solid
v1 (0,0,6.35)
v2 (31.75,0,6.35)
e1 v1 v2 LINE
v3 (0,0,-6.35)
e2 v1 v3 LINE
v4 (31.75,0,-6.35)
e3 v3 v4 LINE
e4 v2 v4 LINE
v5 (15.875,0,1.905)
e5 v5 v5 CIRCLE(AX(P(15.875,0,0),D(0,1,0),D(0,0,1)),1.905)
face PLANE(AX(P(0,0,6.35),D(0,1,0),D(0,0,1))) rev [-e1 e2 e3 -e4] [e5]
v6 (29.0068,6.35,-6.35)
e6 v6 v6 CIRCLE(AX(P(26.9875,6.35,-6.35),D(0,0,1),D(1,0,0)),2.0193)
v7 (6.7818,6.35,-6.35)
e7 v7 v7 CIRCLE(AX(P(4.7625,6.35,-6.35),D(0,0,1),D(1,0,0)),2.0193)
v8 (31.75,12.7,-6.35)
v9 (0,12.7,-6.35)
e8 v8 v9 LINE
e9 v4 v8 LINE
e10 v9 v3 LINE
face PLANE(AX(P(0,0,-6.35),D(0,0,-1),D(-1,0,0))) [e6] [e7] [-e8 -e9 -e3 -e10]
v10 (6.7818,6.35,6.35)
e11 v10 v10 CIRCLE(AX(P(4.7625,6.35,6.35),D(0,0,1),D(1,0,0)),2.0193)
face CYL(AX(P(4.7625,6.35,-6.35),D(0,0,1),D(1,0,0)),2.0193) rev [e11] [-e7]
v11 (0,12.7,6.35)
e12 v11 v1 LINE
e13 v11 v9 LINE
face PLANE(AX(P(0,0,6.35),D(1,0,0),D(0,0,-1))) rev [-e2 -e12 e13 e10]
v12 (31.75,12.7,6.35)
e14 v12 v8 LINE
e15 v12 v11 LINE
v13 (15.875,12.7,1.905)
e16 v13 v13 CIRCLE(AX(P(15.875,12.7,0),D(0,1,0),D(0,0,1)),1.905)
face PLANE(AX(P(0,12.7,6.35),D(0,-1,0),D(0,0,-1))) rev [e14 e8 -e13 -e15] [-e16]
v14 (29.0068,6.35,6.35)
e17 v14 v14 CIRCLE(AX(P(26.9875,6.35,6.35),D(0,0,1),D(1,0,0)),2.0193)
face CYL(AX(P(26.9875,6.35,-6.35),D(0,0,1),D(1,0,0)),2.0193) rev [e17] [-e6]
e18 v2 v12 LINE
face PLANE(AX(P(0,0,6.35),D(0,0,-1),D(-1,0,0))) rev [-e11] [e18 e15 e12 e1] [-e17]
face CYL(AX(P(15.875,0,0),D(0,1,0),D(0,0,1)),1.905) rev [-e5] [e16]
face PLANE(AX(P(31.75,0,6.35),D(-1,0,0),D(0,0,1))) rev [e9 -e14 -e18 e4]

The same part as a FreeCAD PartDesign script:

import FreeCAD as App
import Part
import Sketcher
Q = App.Units.Quantity

doc = App.newDocument("Part")
params = doc.addObject("Spreadsheet::Sheet", "Params")
for row, (alias, value) in enumerate([
    ("sketch1_height", "0.5 in"),
    ("sketch1_width", "1.25 in"),
    ("pad1_length", "0.5 in"),
    ("sketch2_diameter", "0.159 in"),
    ("sketch3_diameter", "0.15 in"),
], start=1):
    params.set(f"A{row}", alias)
    params.set(f"B{row}", "=" + value)
    params.setAlias(f"B{row}", alias)

body = doc.addObject("PartDesign::Body", "Body")

# Sketch on XY plane
sketch1 = doc.addObject("Sketcher::SketchObject", "Sketch")
body.addObject(sketch1)
sketch1.AttachmentSupport = (doc.XY_Plane, [""])
sketch1.MapMode = "FlatFace"
sketch1.addGeometry([
    Part.LineSegment(App.Vector(0, 13, 0), App.Vector(0, 0, 0)),
    Part.LineSegment(App.Vector(0, 0, 0), App.Vector(32, 0, 0)),
    Part.LineSegment(App.Vector(32, 0, 0), App.Vector(32, 13, 0)),
    Part.LineSegment(App.Vector(32, 13, 0), App.Vector(0, 13, 0)),
], False)
sketch1.addConstraint([
    Sketcher.Constraint("Coincident", 0, 2, 1, 1),
    Sketcher.Constraint("Coincident", 1, 2, 2, 1),
    Sketcher.Constraint("Coincident", 2, 2, 3, 1),
    Sketcher.Constraint("Coincident", 3, 2, 0, 1),
    Sketcher.Constraint("Vertical", 0),
    Sketcher.Constraint("Horizontal", 1),
    Sketcher.Constraint("Vertical", 2),
    Sketcher.Constraint("Horizontal", 3),
    Sketcher.Constraint("Coincident", 0, 2, -1, 1),
    Sketcher.Constraint("DistanceY", 0, 2, 0, 1, Q("0.5 in")),
    Sketcher.Constraint("DistanceX", 1, 1, 1, 2, Q("1.25 in")),
])
sketch1.setExpression("Constraints[9]", "Params.sketch1_height")
sketch1.setExpression("Constraints[10]", "Params.sketch1_width")
pad1 = doc.addObject("PartDesign::Pad", "Pad")
body.addObject(pad1)
pad1.Profile = sketch1
pad1.setExpression("Length", "Params.pad1_length")
pad1.Midplane = True

# Sketch on XY plane
sketch2 = doc.addObject("Sketcher::SketchObject", "Sketch001")
body.addObject(sketch2)
sketch2.AttachmentSupport = (doc.XY_Plane, [""])
sketch2.MapMode = "FlatFace"
sketch2.AttachmentOffset = App.Placement(App.Vector(0, 0, 0.25 * 25.4), App.Rotation())
sketch2.addGeometry([
    Part.Circle(App.Vector(4.8, 6.3, 0), App.Vector(0, 0, 1), 2),
    Part.Circle(App.Vector(27, 6.3, 0), App.Vector(0, 0, 1), 2),
], False)
sketch2.addConstraint([
    Sketcher.Constraint("Equal", 0, 1),
    Sketcher.Constraint("Horizontal", 0, 3, 1, 3),
    Sketcher.Constraint("Diameter", 0, Q("0.159 in")),
    Sketcher.Constraint("DistanceY", -1, 1, 0, 3, Q("0.25 in")),
    Sketcher.Constraint("DistanceX", -1, 1, 0, 3, Q("0.1875 in")),
    Sketcher.Constraint("DistanceX", -1, 1, 1, 3, Q("1.0625 in")),
])
sketch2.setExpression("Constraints[2]", "Params.sketch2_diameter")
pocket1 = doc.addObject("PartDesign::Pocket", "Pocket")
body.addObject(pocket1)
pocket1.Profile = sketch2
pocket1.Type = "ThroughAll"

# Sketch on XZ plane
sketch3 = doc.addObject("Sketcher::SketchObject", "Sketch002")
body.addObject(sketch3)
sketch3.AttachmentSupport = (doc.XZ_Plane, [""])
sketch3.MapMode = "FlatFace"
sketch3.AttachmentOffset = App.Placement(App.Vector(0, 0, -0.5 * 25.4), App.Rotation())
sketch3.addGeometry(Part.Circle(App.Vector(15.9, 0, 0), App.Vector(0, 0, 1), 1.9), False)
sketch3.addConstraint([
    Sketcher.Constraint("PointOnObject", 0, 3, -1),
    Sketcher.Constraint("Diameter", 0, Q("0.15 in")),
    Sketcher.Constraint("DistanceX", -1, 1, 0, 3, Q("0.625 in")),
])
sketch3.setExpression("Constraints[1]", "Params.sketch3_diameter")
pocket2 = doc.addObject("PartDesign::Pocket", "Pocket001")
body.addObject(pocket2)
pocket2.Profile = sketch3
pocket2.Type = "ThroughAll"
pocket2.Reversed = True

doc.recompute()
